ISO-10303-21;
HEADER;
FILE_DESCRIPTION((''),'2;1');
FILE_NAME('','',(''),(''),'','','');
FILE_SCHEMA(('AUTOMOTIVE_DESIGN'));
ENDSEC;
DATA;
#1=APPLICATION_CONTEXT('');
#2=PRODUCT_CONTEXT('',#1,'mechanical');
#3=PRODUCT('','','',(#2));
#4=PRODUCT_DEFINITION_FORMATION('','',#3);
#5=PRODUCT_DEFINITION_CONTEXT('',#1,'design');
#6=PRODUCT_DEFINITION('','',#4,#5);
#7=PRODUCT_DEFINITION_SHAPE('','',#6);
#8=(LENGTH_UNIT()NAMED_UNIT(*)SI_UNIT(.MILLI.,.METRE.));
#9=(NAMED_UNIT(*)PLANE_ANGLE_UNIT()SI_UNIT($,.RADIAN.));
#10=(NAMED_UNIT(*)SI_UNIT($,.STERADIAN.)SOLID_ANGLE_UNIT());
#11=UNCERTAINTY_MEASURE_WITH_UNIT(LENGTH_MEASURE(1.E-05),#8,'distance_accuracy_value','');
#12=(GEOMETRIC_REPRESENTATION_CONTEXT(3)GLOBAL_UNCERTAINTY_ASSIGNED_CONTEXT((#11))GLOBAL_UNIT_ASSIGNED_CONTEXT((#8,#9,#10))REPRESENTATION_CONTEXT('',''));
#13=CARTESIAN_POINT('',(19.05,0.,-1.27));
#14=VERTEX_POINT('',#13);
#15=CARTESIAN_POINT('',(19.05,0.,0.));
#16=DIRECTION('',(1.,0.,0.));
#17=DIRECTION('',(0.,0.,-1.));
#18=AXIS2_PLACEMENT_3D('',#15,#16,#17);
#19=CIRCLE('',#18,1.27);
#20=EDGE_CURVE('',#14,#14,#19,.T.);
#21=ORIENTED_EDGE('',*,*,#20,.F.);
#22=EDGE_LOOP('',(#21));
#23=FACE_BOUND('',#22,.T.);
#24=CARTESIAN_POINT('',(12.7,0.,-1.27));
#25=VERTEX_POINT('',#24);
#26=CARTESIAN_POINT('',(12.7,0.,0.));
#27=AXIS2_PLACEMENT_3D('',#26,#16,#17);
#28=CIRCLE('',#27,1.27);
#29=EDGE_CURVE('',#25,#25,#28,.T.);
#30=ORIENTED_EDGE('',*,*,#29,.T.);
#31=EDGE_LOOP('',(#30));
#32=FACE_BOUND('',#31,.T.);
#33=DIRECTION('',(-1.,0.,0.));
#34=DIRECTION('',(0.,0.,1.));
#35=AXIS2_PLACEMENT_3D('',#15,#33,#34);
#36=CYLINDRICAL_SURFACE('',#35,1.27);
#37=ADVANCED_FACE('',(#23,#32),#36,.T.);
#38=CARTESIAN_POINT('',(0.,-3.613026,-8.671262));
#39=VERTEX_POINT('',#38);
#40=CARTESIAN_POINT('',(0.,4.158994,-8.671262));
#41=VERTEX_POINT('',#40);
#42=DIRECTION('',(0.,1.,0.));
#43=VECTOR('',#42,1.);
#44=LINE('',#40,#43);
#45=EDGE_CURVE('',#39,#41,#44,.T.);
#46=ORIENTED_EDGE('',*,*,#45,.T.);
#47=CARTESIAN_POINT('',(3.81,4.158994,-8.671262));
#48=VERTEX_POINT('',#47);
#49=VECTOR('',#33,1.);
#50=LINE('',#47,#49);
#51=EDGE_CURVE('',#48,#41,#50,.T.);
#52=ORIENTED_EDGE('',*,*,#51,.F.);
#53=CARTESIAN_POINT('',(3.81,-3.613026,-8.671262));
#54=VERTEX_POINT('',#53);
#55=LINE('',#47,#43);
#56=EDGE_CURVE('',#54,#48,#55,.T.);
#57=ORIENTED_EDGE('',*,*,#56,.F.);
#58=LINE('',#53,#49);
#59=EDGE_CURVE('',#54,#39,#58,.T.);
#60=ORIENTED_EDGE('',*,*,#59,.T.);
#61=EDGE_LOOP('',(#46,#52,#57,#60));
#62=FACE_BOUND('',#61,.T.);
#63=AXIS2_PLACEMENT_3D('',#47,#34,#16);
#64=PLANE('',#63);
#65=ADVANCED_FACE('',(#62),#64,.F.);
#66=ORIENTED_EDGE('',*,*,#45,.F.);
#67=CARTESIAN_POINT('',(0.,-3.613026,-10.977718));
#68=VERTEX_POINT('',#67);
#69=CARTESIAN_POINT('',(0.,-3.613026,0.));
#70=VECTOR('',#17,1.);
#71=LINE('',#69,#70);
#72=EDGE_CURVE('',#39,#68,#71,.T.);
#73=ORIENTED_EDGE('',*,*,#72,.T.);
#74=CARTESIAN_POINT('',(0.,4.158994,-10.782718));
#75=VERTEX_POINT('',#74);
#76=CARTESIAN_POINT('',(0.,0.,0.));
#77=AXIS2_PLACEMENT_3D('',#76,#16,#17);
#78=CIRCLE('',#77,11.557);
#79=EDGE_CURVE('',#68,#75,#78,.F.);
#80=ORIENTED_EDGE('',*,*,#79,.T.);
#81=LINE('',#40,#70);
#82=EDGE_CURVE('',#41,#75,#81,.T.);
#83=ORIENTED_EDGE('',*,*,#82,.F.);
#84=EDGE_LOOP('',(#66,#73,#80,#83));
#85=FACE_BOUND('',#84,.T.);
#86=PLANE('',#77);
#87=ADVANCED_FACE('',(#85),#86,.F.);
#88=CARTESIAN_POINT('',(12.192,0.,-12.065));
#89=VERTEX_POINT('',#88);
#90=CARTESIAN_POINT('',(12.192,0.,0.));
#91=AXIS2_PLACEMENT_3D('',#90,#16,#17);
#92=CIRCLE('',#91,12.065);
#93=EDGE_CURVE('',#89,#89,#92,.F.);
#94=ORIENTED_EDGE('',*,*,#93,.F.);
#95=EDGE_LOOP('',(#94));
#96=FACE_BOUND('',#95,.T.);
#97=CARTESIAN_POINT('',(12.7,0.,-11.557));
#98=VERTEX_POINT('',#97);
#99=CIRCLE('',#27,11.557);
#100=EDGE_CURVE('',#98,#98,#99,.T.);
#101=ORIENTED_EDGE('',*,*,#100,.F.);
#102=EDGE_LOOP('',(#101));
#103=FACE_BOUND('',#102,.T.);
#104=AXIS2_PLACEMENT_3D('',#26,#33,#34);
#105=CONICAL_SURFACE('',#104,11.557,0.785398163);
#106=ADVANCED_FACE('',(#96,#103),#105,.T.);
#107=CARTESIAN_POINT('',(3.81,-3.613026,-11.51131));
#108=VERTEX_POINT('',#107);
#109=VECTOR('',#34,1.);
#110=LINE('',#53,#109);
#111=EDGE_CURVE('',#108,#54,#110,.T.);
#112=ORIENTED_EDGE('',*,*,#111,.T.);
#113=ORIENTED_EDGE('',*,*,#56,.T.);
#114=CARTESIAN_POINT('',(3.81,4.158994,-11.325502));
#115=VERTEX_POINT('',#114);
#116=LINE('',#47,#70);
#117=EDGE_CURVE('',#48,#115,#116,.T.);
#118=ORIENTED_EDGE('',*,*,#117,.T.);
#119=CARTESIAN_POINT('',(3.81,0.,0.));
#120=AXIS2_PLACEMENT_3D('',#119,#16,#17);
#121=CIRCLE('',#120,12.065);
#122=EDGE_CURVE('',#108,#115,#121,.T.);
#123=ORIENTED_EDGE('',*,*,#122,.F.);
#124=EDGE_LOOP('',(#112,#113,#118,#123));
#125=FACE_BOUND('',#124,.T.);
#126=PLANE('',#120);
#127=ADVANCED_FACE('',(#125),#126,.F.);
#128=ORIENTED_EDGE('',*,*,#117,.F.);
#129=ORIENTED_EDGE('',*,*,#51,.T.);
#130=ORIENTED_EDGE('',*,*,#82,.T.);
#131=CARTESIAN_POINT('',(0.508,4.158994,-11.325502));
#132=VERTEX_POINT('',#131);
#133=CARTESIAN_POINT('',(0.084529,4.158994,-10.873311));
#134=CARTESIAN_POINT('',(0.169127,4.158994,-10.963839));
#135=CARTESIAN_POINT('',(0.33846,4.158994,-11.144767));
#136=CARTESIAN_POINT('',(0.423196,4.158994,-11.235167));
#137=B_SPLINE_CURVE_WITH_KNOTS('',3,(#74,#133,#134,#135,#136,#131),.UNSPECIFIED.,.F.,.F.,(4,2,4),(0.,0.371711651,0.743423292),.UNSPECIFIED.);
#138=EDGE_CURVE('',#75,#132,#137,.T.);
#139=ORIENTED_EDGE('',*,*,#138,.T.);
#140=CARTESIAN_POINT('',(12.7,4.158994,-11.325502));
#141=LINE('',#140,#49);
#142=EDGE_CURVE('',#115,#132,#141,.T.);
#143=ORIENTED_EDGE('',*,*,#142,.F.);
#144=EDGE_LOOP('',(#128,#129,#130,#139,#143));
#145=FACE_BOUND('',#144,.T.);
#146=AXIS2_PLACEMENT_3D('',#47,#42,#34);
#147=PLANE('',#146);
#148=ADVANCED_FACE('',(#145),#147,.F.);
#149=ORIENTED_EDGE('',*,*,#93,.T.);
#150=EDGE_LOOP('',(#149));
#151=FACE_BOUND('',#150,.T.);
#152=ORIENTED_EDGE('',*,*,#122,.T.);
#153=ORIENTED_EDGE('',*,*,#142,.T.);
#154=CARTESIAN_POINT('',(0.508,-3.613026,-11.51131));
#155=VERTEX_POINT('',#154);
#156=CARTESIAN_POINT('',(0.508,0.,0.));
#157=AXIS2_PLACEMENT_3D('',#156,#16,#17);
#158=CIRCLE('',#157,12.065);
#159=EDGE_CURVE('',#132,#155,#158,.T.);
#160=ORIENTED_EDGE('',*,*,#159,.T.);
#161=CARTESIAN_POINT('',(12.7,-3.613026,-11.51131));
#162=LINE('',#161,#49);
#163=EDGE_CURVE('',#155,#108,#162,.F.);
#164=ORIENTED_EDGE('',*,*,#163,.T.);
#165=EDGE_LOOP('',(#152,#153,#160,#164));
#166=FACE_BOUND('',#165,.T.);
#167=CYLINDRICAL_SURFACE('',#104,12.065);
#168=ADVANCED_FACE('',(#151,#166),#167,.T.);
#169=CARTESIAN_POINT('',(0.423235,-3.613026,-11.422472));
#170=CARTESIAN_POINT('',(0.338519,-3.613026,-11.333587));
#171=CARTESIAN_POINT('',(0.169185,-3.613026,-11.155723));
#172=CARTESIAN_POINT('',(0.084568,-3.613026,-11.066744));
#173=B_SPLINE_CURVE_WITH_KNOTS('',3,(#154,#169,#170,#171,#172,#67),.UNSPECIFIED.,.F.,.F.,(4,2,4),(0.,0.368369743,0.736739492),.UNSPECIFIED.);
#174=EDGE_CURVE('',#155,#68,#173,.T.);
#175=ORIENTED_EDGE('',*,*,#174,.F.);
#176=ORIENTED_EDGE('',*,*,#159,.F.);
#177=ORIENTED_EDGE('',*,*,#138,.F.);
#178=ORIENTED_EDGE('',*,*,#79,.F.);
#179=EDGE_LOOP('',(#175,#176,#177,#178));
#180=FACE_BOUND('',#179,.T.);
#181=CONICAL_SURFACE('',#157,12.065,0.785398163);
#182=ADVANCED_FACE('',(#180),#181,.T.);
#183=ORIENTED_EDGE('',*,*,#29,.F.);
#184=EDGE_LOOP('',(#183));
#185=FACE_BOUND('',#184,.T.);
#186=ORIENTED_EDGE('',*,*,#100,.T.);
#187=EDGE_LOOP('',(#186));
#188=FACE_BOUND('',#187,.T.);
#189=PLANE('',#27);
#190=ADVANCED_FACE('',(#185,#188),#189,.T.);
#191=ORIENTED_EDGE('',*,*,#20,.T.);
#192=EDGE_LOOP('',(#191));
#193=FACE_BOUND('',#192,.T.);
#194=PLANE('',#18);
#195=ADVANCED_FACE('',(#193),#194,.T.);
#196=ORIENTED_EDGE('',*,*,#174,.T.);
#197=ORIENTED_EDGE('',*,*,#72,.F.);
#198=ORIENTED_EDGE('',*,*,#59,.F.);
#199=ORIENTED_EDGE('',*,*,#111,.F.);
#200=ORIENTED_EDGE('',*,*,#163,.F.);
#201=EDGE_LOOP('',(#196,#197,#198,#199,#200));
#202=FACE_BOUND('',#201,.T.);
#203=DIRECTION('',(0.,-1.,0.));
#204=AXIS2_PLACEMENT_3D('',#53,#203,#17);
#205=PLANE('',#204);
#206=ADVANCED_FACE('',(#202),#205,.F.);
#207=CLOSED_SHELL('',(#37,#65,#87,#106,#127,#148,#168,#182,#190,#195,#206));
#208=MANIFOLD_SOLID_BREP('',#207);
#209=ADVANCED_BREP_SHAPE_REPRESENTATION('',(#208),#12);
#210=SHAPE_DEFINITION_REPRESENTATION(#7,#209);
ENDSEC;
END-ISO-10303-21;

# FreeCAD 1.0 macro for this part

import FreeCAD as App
import Part
import Sketcher
Q = App.Units.Quantity


def edges_at(feature, points):
    """Names of the edges that pass closest to the given points."""
    edges = feature.Shape.Edges
    near = lambda p: min(range(len(edges)), key=lambda i: edges[i].distToShape(Part.Vertex(*p))[0])
    return sorted({f"Edge{near(p) + 1}" for p in points})


def add_polygon(sketch, points):
    """Adds a closed chain of lines whose ends are joined by coincident constraints."""
    first, n = sketch.GeometryCount, len(points)
    for a, b in zip(points, points[1:] + points[:1]):
        sketch.addGeometry(Part.LineSegment(App.Vector(*a, 0), App.Vector(*b, 0)), False)
    for i in range(n):
        sketch.addConstraint(Sketcher.Constraint("Coincident", first + i, 2, first + (i + 1) % n, 1))

doc = App.newDocument("Part")
body = doc.addObject("PartDesign::Body", "Body")

# Sketch on YZ plane
sketch1 = body.newObject("Sketcher::SketchObject", "Sketch")
sketch1.AttachmentSupport = (doc.getObject("YZ_Plane"), [""])
sketch1.MapMode = "FlatFace"
sketch1.addGeometry(Part.Circle(App.Vector(0, 0, 0), App.Vector(0, 0, 1), 12.065), False)
sketch1.addConstraint([
    Sketcher.Constraint("Coincident", 0, 3, -1, 1),
    Sketcher.Constraint("Diameter", 0, Q("0.95 in")),
])
pad1 = body.newObject("PartDesign::Pad", "Pad")
pad1.Profile = sketch1
pad1.Length = Q("0.5 in")

# Sketch on YZ plane
sketch2 = body.newObject("Sketcher::SketchObject", "Sketch001")
sketch2.AttachmentSupport = (doc.getObject("YZ_Plane"), [""])
sketch2.MapMode = "FlatFace"
sketch2.AttachmentOffset = App.Placement(App.Vector(0, 0, 0.5 * 25.4), App.Rotation())
sketch2.addGeometry(Part.Circle(App.Vector(0, 0, 0), App.Vector(0, 0, 1), 1.27), False)
sketch2.addConstraint([
    Sketcher.Constraint("Coincident", 0, 3, -1, 1),
    Sketcher.Constraint("Diameter", 0, Q("0.1 in")),
])
pad2 = body.newObject("PartDesign::Pad", "Pad001")
pad2.Profile = sketch2
pad2.Length = Q("0.25 in")

# Sketch on YZ plane
sketch3 = body.newObject("Sketcher::SketchObject", "Sketch002")
sketch3.AttachmentSupport = (doc.getObject("YZ_Plane"), [""])
sketch3.MapMode = "FlatFace"
add_polygon(sketch3, [(4.158994, -13.713441), (-3.613026, -13.713441), (-3.613026, -8.671262), (4.158994, -8.671262)])  # lines 0-3
sketch3.addConstraint([
    Sketcher.Constraint("Horizontal", 0),
    Sketcher.Constraint("Vertical", 1),
    Sketcher.Constraint("Horizontal", 2),
    Sketcher.Constraint("Vertical", 3),
    Sketcher.Constraint("DistanceX", 0, 2, 0, 1, 7.77202),
    Sketcher.Constraint("DistanceY", 1, 1, 1, 2, 5.042178),
    Sketcher.Constraint("DistanceY", 0, 2, -1, 1, 13.713441),
    Sketcher.Constraint("DistanceX", 0, 2, -1, 1, 3.613026),
])
pocket1 = body.newObject("PartDesign::Pocket", "Pocket")
pocket1.Profile = sketch3
pocket1.Length = Q("0.15 in")
pocket1.Reversed = True
doc.recompute()

chamfer = body.newObject("PartDesign::Chamfer", "Chamfer")
chamfer.Base = (pocket1, edges_at(pocket1, [(0, -0.288, 12.062), (12.7, 0, 12.065)]))
chamfer.Size = Q("0.02 in")

doc.recompute()
